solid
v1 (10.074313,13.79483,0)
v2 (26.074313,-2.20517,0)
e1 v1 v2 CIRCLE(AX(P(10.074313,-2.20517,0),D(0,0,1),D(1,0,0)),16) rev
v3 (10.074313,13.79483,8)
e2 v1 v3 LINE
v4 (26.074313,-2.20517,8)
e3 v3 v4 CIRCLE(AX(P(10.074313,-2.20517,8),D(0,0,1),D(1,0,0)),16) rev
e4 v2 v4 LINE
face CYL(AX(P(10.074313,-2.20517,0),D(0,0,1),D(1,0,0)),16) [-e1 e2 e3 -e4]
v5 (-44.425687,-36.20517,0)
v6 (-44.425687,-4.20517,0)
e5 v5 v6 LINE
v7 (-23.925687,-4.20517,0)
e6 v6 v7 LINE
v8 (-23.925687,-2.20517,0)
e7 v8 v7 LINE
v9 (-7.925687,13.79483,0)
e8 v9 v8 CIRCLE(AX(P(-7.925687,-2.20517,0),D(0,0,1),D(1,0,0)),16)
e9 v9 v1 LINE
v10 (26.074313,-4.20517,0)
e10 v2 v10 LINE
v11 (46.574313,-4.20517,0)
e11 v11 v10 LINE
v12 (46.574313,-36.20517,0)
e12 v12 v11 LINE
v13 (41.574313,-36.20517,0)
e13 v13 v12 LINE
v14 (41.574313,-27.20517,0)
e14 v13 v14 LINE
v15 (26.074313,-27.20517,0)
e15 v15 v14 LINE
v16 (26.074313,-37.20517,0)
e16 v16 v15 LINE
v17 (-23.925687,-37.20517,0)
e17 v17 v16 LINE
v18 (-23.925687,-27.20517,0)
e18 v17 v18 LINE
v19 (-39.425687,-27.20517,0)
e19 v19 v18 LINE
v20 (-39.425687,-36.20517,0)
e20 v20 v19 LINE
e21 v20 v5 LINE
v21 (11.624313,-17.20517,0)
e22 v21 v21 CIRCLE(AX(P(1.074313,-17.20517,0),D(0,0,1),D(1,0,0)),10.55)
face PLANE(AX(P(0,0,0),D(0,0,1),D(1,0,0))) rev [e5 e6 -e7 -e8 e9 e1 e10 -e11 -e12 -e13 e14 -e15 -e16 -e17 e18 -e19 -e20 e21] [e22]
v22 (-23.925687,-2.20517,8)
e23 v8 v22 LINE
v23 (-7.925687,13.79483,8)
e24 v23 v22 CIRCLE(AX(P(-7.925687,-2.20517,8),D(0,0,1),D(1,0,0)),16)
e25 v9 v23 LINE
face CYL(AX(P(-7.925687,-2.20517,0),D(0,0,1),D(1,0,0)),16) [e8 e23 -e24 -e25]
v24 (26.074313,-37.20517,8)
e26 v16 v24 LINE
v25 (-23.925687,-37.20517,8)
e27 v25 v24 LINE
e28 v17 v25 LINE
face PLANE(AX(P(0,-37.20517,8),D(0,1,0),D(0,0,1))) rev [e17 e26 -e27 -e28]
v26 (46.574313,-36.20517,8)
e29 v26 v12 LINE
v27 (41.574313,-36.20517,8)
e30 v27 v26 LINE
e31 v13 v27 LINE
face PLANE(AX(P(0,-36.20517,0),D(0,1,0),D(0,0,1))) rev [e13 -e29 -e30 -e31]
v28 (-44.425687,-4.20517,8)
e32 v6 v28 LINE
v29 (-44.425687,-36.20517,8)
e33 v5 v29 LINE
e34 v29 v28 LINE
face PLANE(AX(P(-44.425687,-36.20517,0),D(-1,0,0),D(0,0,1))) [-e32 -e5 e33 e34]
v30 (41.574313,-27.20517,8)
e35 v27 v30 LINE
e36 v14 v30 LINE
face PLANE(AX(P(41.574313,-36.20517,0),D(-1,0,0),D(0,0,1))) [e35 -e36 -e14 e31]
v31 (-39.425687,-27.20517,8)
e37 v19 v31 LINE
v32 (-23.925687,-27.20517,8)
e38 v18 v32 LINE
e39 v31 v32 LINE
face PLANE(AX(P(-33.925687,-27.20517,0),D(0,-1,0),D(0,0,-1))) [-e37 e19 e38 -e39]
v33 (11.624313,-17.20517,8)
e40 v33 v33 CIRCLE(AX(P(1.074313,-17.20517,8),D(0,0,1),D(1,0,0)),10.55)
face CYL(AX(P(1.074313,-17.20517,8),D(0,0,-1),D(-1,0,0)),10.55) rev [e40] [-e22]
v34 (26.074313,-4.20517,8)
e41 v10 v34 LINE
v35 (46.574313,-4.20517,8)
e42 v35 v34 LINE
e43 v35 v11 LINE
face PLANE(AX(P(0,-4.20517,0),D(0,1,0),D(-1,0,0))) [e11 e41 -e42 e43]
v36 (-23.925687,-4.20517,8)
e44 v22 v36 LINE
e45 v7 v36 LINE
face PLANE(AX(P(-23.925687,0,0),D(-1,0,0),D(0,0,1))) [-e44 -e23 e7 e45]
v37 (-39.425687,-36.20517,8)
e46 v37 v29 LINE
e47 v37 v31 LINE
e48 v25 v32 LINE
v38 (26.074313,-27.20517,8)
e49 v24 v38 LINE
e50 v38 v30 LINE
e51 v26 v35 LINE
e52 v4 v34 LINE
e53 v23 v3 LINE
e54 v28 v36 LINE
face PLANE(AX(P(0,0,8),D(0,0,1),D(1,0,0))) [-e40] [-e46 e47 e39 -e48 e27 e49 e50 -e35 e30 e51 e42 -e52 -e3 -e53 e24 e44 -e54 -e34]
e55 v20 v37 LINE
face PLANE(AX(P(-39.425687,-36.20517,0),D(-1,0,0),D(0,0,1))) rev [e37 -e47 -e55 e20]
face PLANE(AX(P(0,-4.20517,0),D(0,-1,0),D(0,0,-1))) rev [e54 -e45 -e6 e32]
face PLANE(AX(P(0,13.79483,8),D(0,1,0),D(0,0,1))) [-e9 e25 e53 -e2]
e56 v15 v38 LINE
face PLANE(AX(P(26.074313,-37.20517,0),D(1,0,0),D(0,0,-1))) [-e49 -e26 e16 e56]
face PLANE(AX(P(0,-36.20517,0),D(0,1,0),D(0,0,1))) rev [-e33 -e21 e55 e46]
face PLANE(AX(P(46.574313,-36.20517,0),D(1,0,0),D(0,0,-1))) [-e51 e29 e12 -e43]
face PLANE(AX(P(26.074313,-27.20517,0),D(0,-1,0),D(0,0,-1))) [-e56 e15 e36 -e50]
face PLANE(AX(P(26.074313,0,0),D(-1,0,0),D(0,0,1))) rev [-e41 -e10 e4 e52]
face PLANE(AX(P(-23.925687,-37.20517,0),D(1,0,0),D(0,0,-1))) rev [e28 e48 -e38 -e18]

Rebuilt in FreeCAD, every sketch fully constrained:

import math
import FreeCAD as App
import Part
import Sketcher
from FreeCAD import Vector
Q = App.Units.Quantity

doc = App.newDocument("Part")
params = doc.addObject("Spreadsheet::Sheet", "Params")
for row, (alias, value) in enumerate([
    ("sketch1_diameter", "21.1 mm"),
    ("sketch1_width", "70 mm"),
    ("sketch1_height", "51 mm"),
    ("pad1_length", "8 mm"),
    ("sketch2_radius", "16 mm"),
    ("sketch2_width", "10 mm"),
    ("sketch2_height", "18 mm"),
    ("sketch3_height", "8 mm"),
    ("sketch3_width", "5.5 mm"),
    ("pad2_length", "23 mm"),
    ("sketch4_width", "5 mm"),
    ("sketch4_height", "8 mm"),
    ("pad3_length", "32 mm"),
    ("sketch5_width", "5 mm"),
    ("sketch5_height", "8 mm"),
    ("pad4_length", "32 mm"),
    ("sketch6_height", "8 mm"),
    ("sketch6_width", "5.5 mm"),
    ("pad5_length", "23 mm"),
], start=1):
    params.set(f"A{row}", alias)
    params.set(f"B{row}", "=" + value)
    params.setAlias(f"B{row}", alias)

body = doc.addObject("PartDesign::Body", "Body")

sketch1 = body.newObject("Sketcher::SketchObject", "Sketch")
sketch1.AttachmentSupport = (doc.getObject("XY_Plane"), [""])
sketch1.MapMode = "FlatFace"
sketch1.addGeometry([
    Part.LineSegment(Vector(-34, 14, 0), Vector(-34, -37, 0)),
    Part.LineSegment(Vector(-34, -37, 0), Vector(36, -37, 0)),
    Part.LineSegment(Vector(36, -37, 0), Vector(36, 14, 0)),
    Part.LineSegment(Vector(36, 14, 0), Vector(-34, 14, 0)),
    Part.Circle(Vector(1, -17, 0), Vector(0, 0, 1), 11),
], False)
sketch1.addConstraint([
    Sketcher.Constraint("Coincident", 0, 2, 1, 1),
    Sketcher.Constraint("Coincident", 1, 2, 2, 1),
    Sketcher.Constraint("Coincident", 2, 2, 3, 1),
    Sketcher.Constraint("Coincident", 3, 2, 0, 1),
    Sketcher.Constraint("Vertical", 0),
    Sketcher.Constraint("Horizontal", 1),
    Sketcher.Constraint("Vertical", 2),
    Sketcher.Constraint("Horizontal", 3),
    Sketcher.Constraint("Diameter", 4, Q("21.1 mm")),
    Sketcher.Constraint("DistanceX", 1, 1, 1, 2, Q("70 mm")),
    Sketcher.Constraint("DistanceY", 0, 2, 0, 1, Q("51 mm")),
    Sketcher.Constraint("DistanceX", 0, 2, 4, 3, Q("35 mm")),
    Sketcher.Constraint("DistanceY", 0, 2, 4, 3, Q("20 mm")),
    Sketcher.Constraint("DistanceY", 4, 3, -1, 1, Q("17.20517 mm")),
    Sketcher.Constraint("DistanceX", -1, 1, 4, 3, Q("1.074313 mm")),
])
sketch1.setExpression("Constraints[8]", "Params.sketch1_diameter")
sketch1.setExpression("Constraints[9]", "Params.sketch1_width")
sketch1.setExpression("Constraints[10]", "Params.sketch1_height")
pad1 = body.newObject("PartDesign::Pad", "Pad")
pad1.Profile = sketch1
pad1.setExpression("Length", "Params.pad1_length")

sketch2 = body.newObject("Sketcher::SketchObject", "Sketch001")
sketch2.AttachmentSupport = (doc.getObject("XY_Plane"), [""])
sketch2.MapMode = "FlatFace"
sketch2.AttachmentOffset = App.Placement(Vector(0, 0, 8), App.Rotation())
sketch2.addGeometry([
    Part.LineSegment(Vector(26.1, -27.2, 0), Vector(26.1, -37.2, 0)),
    Part.LineSegment(Vector(26.1, -37.2, 0), Vector(36.1, -37.2, 0)),
    Part.LineSegment(Vector(36.1, -37.2, 0), Vector(36.1, -27.2, 0)),
    Part.LineSegment(Vector(36.1, -27.2, 0), Vector(26.1, -27.2, 0)),
    Part.LineSegment(Vector(-33.9, -27.2, 0), Vector(-33.9, -37.2, 0)),
    Part.LineSegment(Vector(-33.9, -37.2, 0), Vector(-23.9, -37.2, 0)),
    Part.LineSegment(Vector(-23.9, -37.2, 0), Vector(-23.9, -27.2, 0)),
    Part.LineSegment(Vector(-23.9, -27.2, 0), Vector(-33.9, -27.2, 0)),
    Part.LineSegment(Vector(26.1, -4.2, 0), Vector(36.1, -4.2, 0)),
    Part.LineSegment(Vector(36.1, -4.2, 0), Vector(36.1, 13.8, 0)),
    Part.LineSegment(Vector(36.1, 13.8, 0), Vector(10.1, 13.8, 0)),
    Part.ArcOfCircle(Part.Circle(Vector(10.1, -2.2, 0), Vector(0, 0, 1), 16), math.radians(0), math.radians(90)),
    Part.LineSegment(Vector(26.1, -2.2, 0), Vector(26.1, -4.2, 0)),
    Part.LineSegment(Vector(-33.9, 13.8, 0), Vector(-33.9, -4.2, 0)),
    Part.LineSegment(Vector(-33.9, -4.2, 0), Vector(-23.9, -4.2, 0)),
    Part.LineSegment(Vector(-23.9, -4.2, 0), Vector(-23.9, -2.2, 0)),
    Part.ArcOfCircle(Part.Circle(Vector(-7.9, -2.2, 0), Vector(0, 0, 1), 16), math.radians(90), math.radians(180)),
    Part.LineSegment(Vector(-7.9, 13.8, 0), Vector(-33.9, 13.8, 0)),
], False)
sketch2.addConstraint([
    Sketcher.Constraint("Coincident", 0, 2, 1, 1),
    Sketcher.Constraint("Coincident", 1, 2, 2, 1),
    Sketcher.Constraint("Coincident", 2, 2, 3, 1),
    Sketcher.Constraint("Coincident", 3, 2, 0, 1),
    Sketcher.Constraint("Coincident", 4, 2, 5, 1),
    Sketcher.Constraint("Coincident", 5, 2, 6, 1),
    Sketcher.Constraint("Coincident", 6, 2, 7, 1),
    Sketcher.Constraint("Coincident", 7, 2, 4, 1),
    Sketcher.Constraint("Coincident", 8, 2, 9, 1),
    Sketcher.Constraint("Coincident", 9, 2, 10, 1),
    Sketcher.Constraint("Tangent", 10, 2, 11, 2),
    Sketcher.Constraint("Tangent", 11, 1, 12, 1),
    Sketcher.Constraint("Coincident", 12, 2, 8, 1),
    Sketcher.Constraint("Coincident", 13, 2, 14, 1),
    Sketcher.Constraint("Coincident", 14, 2, 15, 1),
    Sketcher.Constraint("Tangent", 15, 2, 16, 2),
    Sketcher.Constraint("Tangent", 16, 1, 17, 1),
    Sketcher.Constraint("Coincident", 17, 2, 13, 1),
    Sketcher.Constraint("Vertical", 0),
    Sketcher.Constraint("Horizontal", 1),
    Sketcher.Constraint("Vertical", 2),
    Sketcher.Constraint("Horizontal", 3),
    Sketcher.Constraint("Vertical", 4),
    Sketcher.Constraint("Horizontal", 5),
    Sketcher.Constraint("Vertical", 6),
    Sketcher.Constraint("Horizontal", 7),
    Sketcher.Constraint("Horizontal", 8),
    Sketcher.Constraint("Vertical", 9),
    Sketcher.Constraint("Horizontal", 10),
    Sketcher.Constraint("Vertical", 12),
    Sketcher.Constraint("Vertical", 13),
    Sketcher.Constraint("Horizontal", 14),
    Sketcher.Constraint("Vertical", 15),
    Sketcher.Constraint("Horizontal", 17),
    Sketcher.Constraint("Equal", 11, 16),
    Sketcher.Constraint("Horizontal", 11, 3, 16, 3),
    Sketcher.Constraint("Horizontal", 1, 2, 4, 2),
    Sketcher.Constraint("Horizontal", 3, 2, 6, 2),
    Sketcher.Constraint("Horizontal", 12, 2, 13, 2),
    Sketcher.Constraint("Vertical", 2, 2, 8, 2),
    Sketcher.Constraint("Vertical", 3, 2, 11, 1),
    Sketcher.Constraint("Vertical", 7, 2, 13, 2),
    Sketcher.Constraint("Vertical", 6, 2, 14, 2),
    Sketcher.Constraint("Equal", 3, 5),
    Sketcher.Constraint("Equal", 14, 0),
    Sketcher.Constraint("Radius", 11, Q("16 mm")),
    Sketcher.Constraint("DistanceX", 1, 1, 1, 2, Q("10 mm")),
    Sketcher.Constraint("DistanceY", 9, 1, 9, 2, Q("18 mm")),
    Sketcher.Constraint("DistanceX", 16, 3, 11, 3, Q("18 mm")),
    Sketcher.Constraint("DistanceY", 0, 2, 11, 3, Q("35 mm")),
    Sketcher.Constraint("DistanceY", 11, 3, -1, 1, Q("2.20517 mm")),
    Sketcher.Constraint("DistanceX", -1, 1, 11, 3, Q("10.074313 mm")),
])
sketch2.setExpression("Constraints[45]", "Params.sketch2_radius")
sketch2.setExpression("Constraints[46]", "Params.sketch2_width")
sketch2.setExpression("Constraints[47]", "Params.sketch2_height")
pocket1 = body.newObject("PartDesign::Pocket", "Pocket")
pocket1.Profile = sketch2
pocket1.Type = "ThroughAll"

sketch3 = body.newObject("Sketcher::SketchObject", "Sketch002")
sketch3.AttachmentSupport = (doc.getObject("XZ_Plane"), [""])
sketch3.MapMode = "FlatFace"
sketch3.AttachmentOffset = App.Placement(Vector(0, 0, 4.20517), App.Rotation())
sketch3.addGeometry([
    Part.LineSegment(Vector(-39, 0, 0), Vector(-39, 8, 0)),
    Part.LineSegment(Vector(-39, 8, 0), Vector(-34, 8, 0)),
    Part.LineSegment(Vector(-34, 8, 0), Vector(-34, 0, 0)),
    Part.LineSegment(Vector(-34, 0, 0), Vector(-39, 0, 0)),
], False)
sketch3.addConstraint([
    Sketcher.Constraint("Coincident", 0, 2, 1, 1),
    Sketcher.Constraint("Coincident", 1, 2, 2, 1),
    Sketcher.Constraint("Coincident", 2, 2, 3, 1),
    Sketcher.Constraint("Coincident", 3, 2, 0, 1),
    Sketcher.Constraint("Vertical", 0),
    Sketcher.Constraint("Horizontal", 1),
    Sketcher.Constraint("Vertical", 2),
    Sketcher.Constraint("Horizontal", 3),
    Sketcher.Constraint("PointOnObject", 2, 2, -1),
    Sketcher.Constraint("DistanceY", 0, 1, 0, 2, Q("8 mm")),
    Sketcher.Constraint("DistanceX", 1, 1, 1, 2, Q("5.5 mm")),
    Sketcher.Constraint("DistanceX", 0, 2, -1, 1, Q("39.425687 mm")),
])
sketch3.setExpression("Constraints[9]", "Params.sketch3_height")
sketch3.setExpression("Constraints[10]", "Params.sketch3_width")
pad2 = body.newObject("PartDesign::Pad", "Pad001")
pad2.Profile = sketch3
pad2.setExpression("Length", "Params.pad2_length")

sketch4 = body.newObject("Sketcher::SketchObject", "Sketch003")
sketch4.AttachmentSupport = (doc.getObject("XZ_Plane"), [""])
sketch4.MapMode = "FlatFace"
sketch4.AttachmentOffset = App.Placement(Vector(0, 0, 4.20517), App.Rotation())
sketch4.addGeometry([
    Part.LineSegment(Vector(-44, 0, 0), Vector(-44, 8, 0)),
    Part.LineSegment(Vector(-44, 8, 0), Vector(-39, 8, 0)),
    Part.LineSegment(Vector(-39, 8, 0), Vector(-39, 0, 0)),
    Part.LineSegment(Vector(-39, 0, 0), Vector(-44, 0, 0)),
], False)
sketch4.addConstraint([
    Sketcher.Constraint("Coincident", 0, 2, 1, 1),
    Sketcher.Constraint("Coincident", 1, 2, 2, 1),
    Sketcher.Constraint("Coincident", 2, 2, 3, 1),
    Sketcher.Constraint("Coincident", 3, 2, 0, 1),
    Sketcher.Constraint("Vertical", 0),
    Sketcher.Constraint("Horizontal", 1),
    Sketcher.Constraint("Vertical", 2),
    Sketcher.Constraint("Horizontal", 3),
    Sketcher.Constraint("PointOnObject", 2, 2, -1),
    Sketcher.Constraint("DistanceX", 1, 1, 1, 2, Q("5 mm")),
    Sketcher.Constraint("DistanceY", 0, 1, 0, 2, Q("8 mm")),
    Sketcher.Constraint("DistanceX", 0, 2, -1, 1, Q("44.425687 mm")),
])
sketch4.setExpression("Constraints[9]", "Params.sketch4_width")
sketch4.setExpression("Constraints[10]", "Params.sketch4_height")
pad3 = body.newObject("PartDesign::Pad", "Pad002")
pad3.Profile = sketch4
pad3.setExpression("Length", "Params.pad3_length")
body2 = doc.addObject("PartDesign::Body", "Body001")

sketch5 = body2.newObject("Sketcher::SketchObject", "Sketch004")
sketch5.AttachmentSupport = (doc.getObject("XZ_Plane001"), [""])
sketch5.MapMode = "FlatFace"
sketch5.AttachmentOffset = App.Placement(Vector(0, 0, 4.20517), App.Rotation())
sketch5.addGeometry([
    Part.LineSegment(Vector(42, 0, 0), Vector(42, 8, 0)),
    Part.LineSegment(Vector(42, 8, 0), Vector(47, 8, 0)),
    Part.LineSegment(Vector(47, 8, 0), Vector(47, 0, 0)),
    Part.LineSegment(Vector(47, 0, 0), Vector(42, 0, 0)),
], False)
sketch5.addConstraint([
    Sketcher.Constraint("Coincident", 0, 2, 1, 1),
    Sketcher.Constraint("Coincident", 1, 2, 2, 1),
    Sketcher.Constraint("Coincident", 2, 2, 3, 1),
    Sketcher.Constraint("Coincident", 3, 2, 0, 1),
    Sketcher.Constraint("Vertical", 0),
    Sketcher.Constraint("Horizontal", 1),
    Sketcher.Constraint("Vertical", 2),
    Sketcher.Constraint("Horizontal", 3),
    Sketcher.Constraint("PointOnObject", 2, 2, -1),
    Sketcher.Constraint("DistanceX", 1, 1, 1, 2, Q("5 mm")),
    Sketcher.Constraint("DistanceY", 0, 1, 0, 2, Q("8 mm")),
    Sketcher.Constraint("DistanceX", -1, 1, 0, 2, Q("41.574313 mm")),
])
sketch5.setExpression("Constraints[9]", "Params.sketch5_width")
sketch5.setExpression("Constraints[10]", "Params.sketch5_height")
pad4 = body2.newObject("PartDesign::Pad", "Pad003")
pad4.Profile = sketch5
pad4.setExpression("Length", "Params.pad4_length")
body.AllowCompound = True
doc.recompute()

boolean = body.newObject("PartDesign::Boolean", "Boolean")
boolean.Type = "Fuse"
boolean.addObjects([body2])

sketch6 = body.newObject("Sketcher::SketchObject", "Sketch005")
sketch6.AttachmentSupport = (doc.getObject("XZ_Plane"), [""])
sketch6.MapMode = "FlatFace"
sketch6.AttachmentOffset = App.Placement(Vector(0, 0, 4.20517), App.Rotation())
sketch6.addGeometry([
    Part.LineSegment(Vector(36, 0, 0), Vector(36, 8, 0)),
    Part.LineSegment(Vector(36, 8, 0), Vector(42, 8, 0)),
    Part.LineSegment(Vector(42, 8, 0), Vector(42, 0, 0)),
    Part.LineSegment(Vector(42, 0, 0), Vector(36, 0, 0)),
], False)
sketch6.addConstraint([
    Sketcher.Constraint("Coincident", 0, 2, 1, 1),
    Sketcher.Constraint("Coincident", 1, 2, 2, 1),
    Sketcher.Constraint("Coincident", 2, 2, 3, 1),
    Sketcher.Constraint("Coincident", 3, 2, 0, 1),
    Sketcher.Constraint("Vertical", 0),
    Sketcher.Constraint("Horizontal", 1),
    Sketcher.Constraint("Vertical", 2),
    Sketcher.Constraint("Horizontal", 3),
    Sketcher.Constraint("PointOnObject", 2, 2, -1),
    Sketcher.Constraint("DistanceY", 0, 1, 0, 2, Q("8 mm")),
    Sketcher.Constraint("DistanceX", 1, 1, 1, 2, Q("5.5 mm")),
    Sketcher.Constraint("DistanceX", -1, 1, 0, 2, Q("36.074313 mm")),
])
sketch6.setExpression("Constraints[9]", "Params.sketch6_height")
sketch6.setExpression("Constraints[10]", "Params.sketch6_width")
pad5 = body.newObject("PartDesign::Pad", "Pad004")
pad5.Profile = sketch6
pad5.setExpression("Length", "Params.pad5_length")

doc.recompute()
